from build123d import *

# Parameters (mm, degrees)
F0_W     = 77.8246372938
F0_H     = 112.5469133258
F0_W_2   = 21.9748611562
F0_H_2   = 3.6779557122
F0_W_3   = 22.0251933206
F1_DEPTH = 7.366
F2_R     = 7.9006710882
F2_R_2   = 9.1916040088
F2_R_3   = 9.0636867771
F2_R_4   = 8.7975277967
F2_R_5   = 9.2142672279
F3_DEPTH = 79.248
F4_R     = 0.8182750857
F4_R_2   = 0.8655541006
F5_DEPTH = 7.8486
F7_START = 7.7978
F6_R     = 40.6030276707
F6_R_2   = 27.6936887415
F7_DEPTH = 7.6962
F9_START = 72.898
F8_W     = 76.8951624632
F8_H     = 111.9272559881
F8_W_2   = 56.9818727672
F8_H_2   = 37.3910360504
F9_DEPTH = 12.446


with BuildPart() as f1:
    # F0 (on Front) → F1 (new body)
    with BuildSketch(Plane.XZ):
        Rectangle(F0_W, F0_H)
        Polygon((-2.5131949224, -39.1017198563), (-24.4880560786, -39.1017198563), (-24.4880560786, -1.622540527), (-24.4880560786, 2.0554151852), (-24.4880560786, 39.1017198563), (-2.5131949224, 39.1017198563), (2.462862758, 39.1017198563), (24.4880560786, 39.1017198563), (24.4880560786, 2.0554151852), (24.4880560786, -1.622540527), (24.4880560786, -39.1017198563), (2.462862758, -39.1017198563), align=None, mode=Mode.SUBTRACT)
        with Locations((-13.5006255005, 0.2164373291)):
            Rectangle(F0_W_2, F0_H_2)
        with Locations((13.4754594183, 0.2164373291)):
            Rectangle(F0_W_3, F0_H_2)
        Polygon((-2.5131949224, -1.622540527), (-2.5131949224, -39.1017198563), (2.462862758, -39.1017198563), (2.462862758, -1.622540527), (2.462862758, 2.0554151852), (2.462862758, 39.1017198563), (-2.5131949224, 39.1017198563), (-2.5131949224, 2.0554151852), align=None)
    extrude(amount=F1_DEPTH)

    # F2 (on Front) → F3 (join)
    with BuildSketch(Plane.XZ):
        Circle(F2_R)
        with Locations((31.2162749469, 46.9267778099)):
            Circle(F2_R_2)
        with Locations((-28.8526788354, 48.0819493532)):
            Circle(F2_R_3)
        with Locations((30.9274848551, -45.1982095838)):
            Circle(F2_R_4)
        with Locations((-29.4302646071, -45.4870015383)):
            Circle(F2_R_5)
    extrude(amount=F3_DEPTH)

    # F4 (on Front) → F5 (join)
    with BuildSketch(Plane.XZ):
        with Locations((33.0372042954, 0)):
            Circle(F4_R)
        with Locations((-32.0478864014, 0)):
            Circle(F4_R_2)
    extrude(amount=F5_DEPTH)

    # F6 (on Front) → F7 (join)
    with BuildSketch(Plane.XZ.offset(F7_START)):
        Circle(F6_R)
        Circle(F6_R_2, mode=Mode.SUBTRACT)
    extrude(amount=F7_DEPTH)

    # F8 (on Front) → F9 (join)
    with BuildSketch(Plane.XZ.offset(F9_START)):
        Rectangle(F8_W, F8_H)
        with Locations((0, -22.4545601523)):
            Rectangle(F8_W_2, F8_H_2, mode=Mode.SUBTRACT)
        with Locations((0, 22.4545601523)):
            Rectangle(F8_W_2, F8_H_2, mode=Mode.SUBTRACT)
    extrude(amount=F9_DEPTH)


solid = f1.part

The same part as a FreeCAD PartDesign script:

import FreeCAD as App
import Part
import Sketcher

V = App.Vector
Q = App.Units.Quantity


def add_polygon(sketch, points):
    """Adds a closed chain of lines whose ends are joined by coincident constraints."""
    first, n = sketch.GeometryCount, len(points)
    for a, b in zip(points, points[1:] + points[:1]):
        sketch.addGeometry(Part.LineSegment(App.Vector(*a, 0), App.Vector(*b, 0)), False)
    for i in range(n):
        sketch.addConstraint(Sketcher.Constraint("Coincident", first + i, 2, first + (i + 1) % n, 1))

doc = App.newDocument("Part")
body = doc.addObject("PartDesign::Body", "Body")

sketch1 = body.newObject("Sketcher::SketchObject", "Sketch")
sketch1.AttachmentSupport = (doc.getObject("XZ_Plane"), [""])
sketch1.MapMode = "FlatFace"
add_polygon(sketch1, [(-38.912319, 56.273457), (-38.912319, -56.273457), (38.912319, -56.273457), (38.912319, 56.273457)])
add_polygon(sketch1, [(24.488056, -39.10172), (2.462863, -39.10172), (2.462863, -1.622541), (24.488056, -1.622541)])
add_polygon(sketch1, [(-2.513195, -39.10172), (-24.488056, -39.10172), (-24.488056, -1.622541), (-2.513195, -1.622541)])
add_polygon(sketch1, [(-2.513195, 2.055415), (-24.488056, 2.055415), (-24.488056, 39.10172), (-2.513195, 39.10172)])
add_polygon(sketch1, [(2.462863, 39.10172), (24.488056, 39.10172), (24.488056, 2.055415), (2.462863, 2.055415)])
sketch1.addConstraint([
    Sketcher.Constraint("Vertical", 0),
    Sketcher.Constraint("Horizontal", 1),
    Sketcher.Constraint("Vertical", 2),
    Sketcher.Constraint("Horizontal", 3),
    Sketcher.Constraint("Horizontal", 4),
    Sketcher.Constraint("Vertical", 5),
    Sketcher.Constraint("Horizontal", 6),
    Sketcher.Constraint("Vertical", 7),
    Sketcher.Constraint("Horizontal", 8),
    Sketcher.Constraint("Vertical", 9),
    Sketcher.Constraint("Horizontal", 10),
    Sketcher.Constraint("Vertical", 11),
    Sketcher.Constraint("Horizontal", 12),
    Sketcher.Constraint("Vertical", 13),
    Sketcher.Constraint("Horizontal", 14),
    Sketcher.Constraint("Vertical", 15),
    Sketcher.Constraint("Horizontal", 16),
    Sketcher.Constraint("Vertical", 17),
    Sketcher.Constraint("Horizontal", 18),
    Sketcher.Constraint("Vertical", 19),
    Sketcher.Constraint("Symmetric", 0, 2, 2, 2, -1, 1),
    Sketcher.Constraint("Symmetric", 7, 2, 13, 2, -1, 1),
    Sketcher.Constraint("Symmetric", 8, 2, 16, 2, -1, 1),
    Sketcher.Constraint("Symmetric", 7, 2, 8, 2, -2),
    Sketcher.Constraint("Horizontal", 6, 2, 9, 2),
    Sketcher.Constraint("Horizontal", 15, 2, 17, 2),
    Sketcher.Constraint("Vertical", 11, 2, 14, 2),
    Sketcher.Constraint("Vertical", 5, 2, 18, 2),
    Sketcher.Constraint("DistanceX", 8, 2, 8, 1, Q("21.974861 mm")),
    Sketcher.Constraint("DistanceY", 5, 1, 5, 2, Q("37.479179 mm")),
    Sketcher.Constraint("DistanceX", 1, 1, 1, 2, Q("77.824637 mm")),
    Sketcher.Constraint("DistanceX", 4, 2, 4, 1, Q("22.025193 mm")),
    Sketcher.Constraint("DistanceY", 0, 2, 0, 1, Q("112.546913 mm")),
    Sketcher.Constraint("DistanceY", 13, 1, 13, 2, Q("37.046305 mm")),
    Sketcher.Constraint("DistanceY", 4, 2, -1, 1, Q("39.10172 mm")),
    Sketcher.Constraint("DistanceX", 0, 2, 4, 2, Q("41.375181 mm")),
])
pad1 = body.newObject("PartDesign::Pad", "Pad")
pad1.Profile = sketch1
pad1.Length = Q("0.29 in")

sketch2 = body.newObject("Sketcher::SketchObject", "Sketch001")
sketch2.AttachmentSupport = (doc.getObject("XZ_Plane"), [""])
sketch2.MapMode = "FlatFace"
sketch2.addGeometry([
    Part.Circle(V(0, 0, 0), V(0, 0, 1), 7.900671),
    Part.Circle(V(31.216275, 46.926778, 0), V(0, 0, 1), 9.191604),
    Part.Circle(V(-28.852679, 48.081949, 0), V(0, 0, 1), 9.063687),
    Part.Circle(V(30.927485, -45.19821, 0), V(0, 0, 1), 8.797528),
    Part.Circle(V(-29.430265, -45.487002, 0), V(0, 0, 1), 9.214267),
], False)
sketch2.addConstraint([
    Sketcher.Constraint("Coincident", 0, 3, -1, 1),
    Sketcher.Constraint("Diameter", 0, Q("0.6221001 in")),
    Sketcher.Constraint("Diameter", 1, Q("18.383208 mm")),
    Sketcher.Constraint("Diameter", 2, Q("18.127374 mm")),
    Sketcher.Constraint("Diameter", 3, Q("17.595056 mm")),
    Sketcher.Constraint("Diameter", 4, Q("18.428534 mm")),
    Sketcher.Constraint("DistanceY", 4, 3, -1, 1, Q("45.487002 mm")),
    Sketcher.Constraint("DistanceX", 2, 3, -1, 1, Q("28.852679 mm")),
    Sketcher.Constraint("DistanceY", -1, 1, 2, 3, Q("48.081949 mm")),
    Sketcher.Constraint("DistanceY", 3, 3, -1, 1, Q("45.19821 mm")),
    Sketcher.Constraint("DistanceY", 1, 3, 2, 3, Q("1.155172 mm")),
    Sketcher.Constraint("DistanceX", 3, 3, 1, 3, Q("0.28879 mm")),
    Sketcher.Constraint("DistanceX", 4, 3, 3, 3, Q("60.357749 mm")),
    Sketcher.Constraint("DistanceX", -1, 1, 1, 3, Q("31.216275 mm")),
])
pad2 = body.newObject("PartDesign::Pad", "Pad001")
pad2.Profile = sketch2
pad2.Length = Q("3.12 in")

sketch3 = body.newObject("Sketcher::SketchObject", "Sketch002")
sketch3.AttachmentSupport = (doc.getObject("XZ_Plane"), [""])
sketch3.MapMode = "FlatFace"
sketch3.addGeometry([
    Part.Circle(V(33.037204, 0, 0), V(0, 0, 1), 0.818275),
    Part.Circle(V(-32.047886, 0, 0), V(0, 0, 1), 0.865554),
], False)
sketch3.addConstraint([
    Sketcher.Constraint("PointOnObject", 0, 3, -1),
    Sketcher.Constraint("PointOnObject", 1, 3, -1),
    Sketcher.Constraint("Diameter", 0, Q("1.63655 mm")),
    Sketcher.Constraint("Diameter", 1, Q("1.731108 mm")),
    Sketcher.Constraint("DistanceX", 1, 3, 0, 3, Q("65.085091 mm")),
    Sketcher.Constraint("DistanceX", -1, 1, 0, 3, Q("33.037204 mm")),
])
pad3 = body.newObject("PartDesign::Pad", "Pad002")
pad3.Profile = sketch3
pad3.Length = Q("0.309 in")

sketch4 = body.newObject("Sketcher::SketchObject", "Sketch003")
sketch4.AttachmentSupport = (doc.getObject("XZ_Plane"), [""])
sketch4.MapMode = "FlatFace"
sketch4.AttachmentOffset = App.Placement(V(0, 0, 0.307 * 25.4), App.Rotation())
sketch4.addGeometry([
    Part.Circle(V(0, 0, 0), V(0, 0, 1), 40.603028),
    Part.Circle(V(0, 0, 0), V(0, 0, 1), 27.693689),
], False)
sketch4.addConstraint([
    Sketcher.Constraint("Coincident", 0, 3, -1, 1),
    Sketcher.Constraint("Coincident", 1, 3, -1, 1),
    Sketcher.Constraint("Diameter", 0, Q("81.206055 mm")),
    Sketcher.Constraint("Diameter", 1, Q("55.387377 mm")),
])
pad4 = body.newObject("PartDesign::Pad", "Pad003")
pad4.Profile = sketch4
pad4.Length = Q("0.303 in")

sketch5 = body.newObject("Sketcher::SketchObject", "Sketch004")
sketch5.AttachmentSupport = (doc.getObject("XZ_Plane"), [""])
sketch5.MapMode = "FlatFace"
sketch5.AttachmentOffset = App.Placement(V(0, 0, 2.87 * 25.4), App.Rotation())
add_polygon(sketch5, [(-38.447581, 55.963628), (-38.447581, -55.963628), (38.447581, -55.963628), (38.447581, 55.963628)])
add_polygon(sketch5, [(28.490936, -41.150078), (-28.490936, -41.150078), (-28.490936, -3.759042), (28.490936, -3.759042)])
add_polygon(sketch5, [(28.490936, 3.759042), (-28.490936, 3.759042), (-28.490936, 41.150078), (28.490936, 41.150078)])
sketch5.addConstraint([
    Sketcher.Constraint("Vertical", 0),
    Sketcher.Constraint("Horizontal", 1),
    Sketcher.Constraint("Vertical", 2),
    Sketcher.Constraint("Horizontal", 3),
    Sketcher.Constraint("Horizontal", 4),
    Sketcher.Constraint("Vertical", 5),
    Sketcher.Constraint("Horizontal", 6),
    Sketcher.Constraint("Vertical", 7),
    Sketcher.Constraint("Horizontal", 8),
    Sketcher.Constraint("Vertical", 9),
    Sketcher.Constraint("Horizontal", 10),
    Sketcher.Constraint("Vertical", 11),
    Sketcher.Constraint("Symmetric", 0, 2, 2, 2, -1, 1),
    Sketcher.Constraint("Symmetric", 6, 2, 8, 2, -1, 1),
    Sketcher.Constraint("Symmetric", 4, 2, 10, 2, -1, 1),
    Sketcher.Constraint("Vertical", 5, 2, 8, 2),
    Sketcher.Constraint("DistanceX", 1, 1, 1, 2, Q("76.895162 mm")),
    Sketcher.Constraint("DistanceX", 4, 2, 4, 1, Q("56.981873 mm")),
    Sketcher.Constraint("DistanceY", 0, 2, 0, 1, Q("111.927256 mm")),
    Sketcher.Constraint("DistanceY", 5, 1, 5, 2, Q("37.391036 mm")),
    Sketcher.Constraint("DistanceY", 4, 2, -1, 1, Q("41.150078 mm")),
])
pad5 = body.newObject("PartDesign::Pad", "Pad004")
pad5.Profile = sketch5
pad5.Length = Q("0.49 in")

doc.recompute()
